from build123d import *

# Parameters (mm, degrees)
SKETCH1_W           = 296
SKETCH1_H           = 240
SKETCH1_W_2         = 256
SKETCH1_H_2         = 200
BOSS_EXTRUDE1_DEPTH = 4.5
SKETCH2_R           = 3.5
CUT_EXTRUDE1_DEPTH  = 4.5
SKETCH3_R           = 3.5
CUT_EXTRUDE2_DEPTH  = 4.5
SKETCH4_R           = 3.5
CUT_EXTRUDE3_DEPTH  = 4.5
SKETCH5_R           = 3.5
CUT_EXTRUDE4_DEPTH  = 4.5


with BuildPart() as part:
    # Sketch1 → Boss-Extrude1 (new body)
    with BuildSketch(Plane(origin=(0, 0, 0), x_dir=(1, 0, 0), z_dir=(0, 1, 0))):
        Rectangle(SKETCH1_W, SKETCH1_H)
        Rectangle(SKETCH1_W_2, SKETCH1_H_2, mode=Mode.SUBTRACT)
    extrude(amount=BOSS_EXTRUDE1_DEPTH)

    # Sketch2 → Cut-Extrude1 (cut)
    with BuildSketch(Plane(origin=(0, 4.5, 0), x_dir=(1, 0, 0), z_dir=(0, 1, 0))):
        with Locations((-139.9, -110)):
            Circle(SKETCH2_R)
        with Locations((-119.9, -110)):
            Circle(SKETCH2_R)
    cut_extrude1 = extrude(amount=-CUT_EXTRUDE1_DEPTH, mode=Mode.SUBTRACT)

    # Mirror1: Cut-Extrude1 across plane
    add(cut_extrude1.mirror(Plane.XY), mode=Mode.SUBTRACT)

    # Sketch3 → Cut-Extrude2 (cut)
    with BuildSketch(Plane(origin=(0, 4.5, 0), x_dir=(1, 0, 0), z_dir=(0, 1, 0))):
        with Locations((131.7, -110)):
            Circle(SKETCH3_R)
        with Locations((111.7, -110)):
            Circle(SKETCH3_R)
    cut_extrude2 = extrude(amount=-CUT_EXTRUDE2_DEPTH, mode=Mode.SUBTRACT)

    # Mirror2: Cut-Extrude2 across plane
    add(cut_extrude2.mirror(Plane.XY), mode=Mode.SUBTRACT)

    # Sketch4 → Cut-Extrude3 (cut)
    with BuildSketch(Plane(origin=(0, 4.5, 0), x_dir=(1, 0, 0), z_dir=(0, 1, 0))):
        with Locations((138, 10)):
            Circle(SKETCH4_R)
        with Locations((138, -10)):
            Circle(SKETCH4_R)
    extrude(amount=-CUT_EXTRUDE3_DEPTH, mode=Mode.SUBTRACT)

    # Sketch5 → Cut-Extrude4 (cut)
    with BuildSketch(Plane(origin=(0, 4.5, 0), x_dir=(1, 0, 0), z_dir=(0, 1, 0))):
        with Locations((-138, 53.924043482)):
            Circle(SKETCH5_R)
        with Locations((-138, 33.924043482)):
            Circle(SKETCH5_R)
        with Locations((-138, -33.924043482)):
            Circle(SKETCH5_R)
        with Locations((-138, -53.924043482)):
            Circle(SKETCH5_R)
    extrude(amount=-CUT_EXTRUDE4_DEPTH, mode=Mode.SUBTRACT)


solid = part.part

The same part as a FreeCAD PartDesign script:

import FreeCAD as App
import Part
import Sketcher

V = App.Vector
Q = App.Units.Quantity


def add_polygon(sketch, points):
    """Adds a closed chain of lines whose ends are joined by coincident constraints."""
    first, n = sketch.GeometryCount, len(points)
    for a, b in zip(points, points[1:] + points[:1]):
        sketch.addGeometry(Part.LineSegment(App.Vector(*a, 0), App.Vector(*b, 0)), False)
    for i in range(n):
        sketch.addConstraint(Sketcher.Constraint("Coincident", first + i, 2, first + (i + 1) % n, 1))

doc = App.newDocument("Part")
body = doc.addObject("PartDesign::Body", "Body")

sketch1 = doc.addObject("Sketcher::SketchObject", "Sketch")
body.addObject(sketch1)
sketch1.AttachmentSupport = (doc.XZ_Plane, [""])
sketch1.MapMode = "FlatFace"
add_polygon(sketch1, [(-148, -120), (-148, 120), (148, 120), (148, -120)])
add_polygon(sketch1, [(128, 100), (-128, 100), (-128, -100), (128, -100)])
sketch1.addConstraint([
    Sketcher.Constraint("Vertical", 0),
    Sketcher.Constraint("Horizontal", 1),
    Sketcher.Constraint("Vertical", 2),
    Sketcher.Constraint("Horizontal", 3),
    Sketcher.Constraint("Horizontal", 4),
    Sketcher.Constraint("Vertical", 5),
    Sketcher.Constraint("Horizontal", 6),
    Sketcher.Constraint("Vertical", 7),
    Sketcher.Constraint("Symmetric", 0, 2, 2, 2, -1, 1),
    Sketcher.Constraint("Symmetric", 4, 2, 6, 2, -1, 1),
    Sketcher.Constraint("DistanceX", 1, 1, 1, 2, Q("296 mm")),
    Sketcher.Constraint("DistanceX", 4, 2, 4, 1, Q("256 mm")),
    Sketcher.Constraint("DistanceY", 0, 1, 0, 2, Q("240 mm")),
    Sketcher.Constraint("DistanceY", 5, 2, 5, 1, Q("200 mm")),
])
pad1 = doc.addObject("PartDesign::Pad", "Pad")
body.addObject(pad1)
pad1.Profile = sketch1
pad1.Length = 4.5
pad1.Reversed = True

sketch2 = doc.addObject("Sketcher::SketchObject", "Sketch001")
body.addObject(sketch2)
sketch2.AttachmentSupport = (doc.XZ_Plane, [""])
sketch2.MapMode = "FlatFace"
sketch2.AttachmentOffset = App.Placement(V(0, 0, -4.5), App.Rotation())
sketch2.addGeometry([
    Part.Circle(V(-139.9, 110, 0), V(0, 0, 1), 3.5),
    Part.Circle(V(-119.9, 110, 0), V(0, 0, 1), 3.5),
], False)
sketch2.addConstraint([
    Sketcher.Constraint("Equal", 0, 1),
    Sketcher.Constraint("Horizontal", 0, 3, 1, 3),
    Sketcher.Constraint("Diameter", 0, Q("7 mm")),
    Sketcher.Constraint("DistanceY", -1, 1, 0, 3, Q("110 mm")),
    Sketcher.Constraint("DistanceX", 0, 3, 1, 3, Q("20 mm")),
    Sketcher.Constraint("DistanceX", 0, 3, -1, 1, Q("139.9 mm")),
])
pocket1 = doc.addObject("PartDesign::Pocket", "Pocket")
body.addObject(pocket1)
pocket1.Profile = sketch2
pocket1.Length = 4.5
pocket1.Reversed = True
doc.recompute()

mirrored = doc.addObject("PartDesign::Mirrored", "Mirrored")
body.addObject(mirrored)
mirrored.Originals = [pocket1]
mirrored.MirrorPlane = (doc.XY_Plane, [""])
body.Tip = mirrored

sketch3 = doc.addObject("Sketcher::SketchObject", "Sketch002")
body.addObject(sketch3)
sketch3.AttachmentSupport = (doc.XZ_Plane, [""])
sketch3.MapMode = "FlatFace"
sketch3.AttachmentOffset = App.Placement(V(0, 0, -4.5), App.Rotation())
sketch3.addGeometry([
    Part.Circle(V(131.7, 110, 0), V(0, 0, 1), 3.5),
    Part.Circle(V(111.7, 110, 0), V(0, 0, 1), 3.5),
], False)
sketch3.addConstraint([
    Sketcher.Constraint("Equal", 0, 1),
    Sketcher.Constraint("Horizontal", 0, 3, 1, 3),
    Sketcher.Constraint("Diameter", 0, Q("7 mm")),
    Sketcher.Constraint("DistanceY", -1, 1, 0, 3, Q("110 mm")),
    Sketcher.Constraint("DistanceX", 1, 3, 0, 3, Q("20 mm")),
    Sketcher.Constraint("DistanceX", -1, 1, 0, 3, Q("131.7 mm")),
])
pocket2 = doc.addObject("PartDesign::Pocket", "Pocket001")
body.addObject(pocket2)
pocket2.Profile = sketch3
pocket2.Length = 4.5
pocket2.Reversed = True
doc.recompute()

mirrored2 = doc.addObject("PartDesign::Mirrored", "Mirrored001")
body.addObject(mirrored2)
mirrored2.Originals = [pocket2]
mirrored2.MirrorPlane = (doc.XY_Plane, [""])
body.Tip = mirrored2

sketch4 = doc.addObject("Sketcher::SketchObject", "Sketch003")
body.addObject(sketch4)
sketch4.AttachmentSupport = (doc.XZ_Plane, [""])
sketch4.MapMode = "FlatFace"
sketch4.AttachmentOffset = App.Placement(V(0, 0, -4.5), App.Rotation())
sketch4.addGeometry([
    Part.Circle(V(138, -10, 0), V(0, 0, 1), 3.5),
    Part.Circle(V(138, 10, 0), V(0, 0, 1), 3.5),
], False)
sketch4.addConstraint([
    Sketcher.Constraint("Equal", 0, 1),
    Sketcher.Constraint("Symmetric", 0, 3, 1, 3, -1),
    Sketcher.Constraint("Diameter", 0, Q("7 mm")),
    Sketcher.Constraint("DistanceX", -1, 1, 0, 3, Q("138 mm")),
    Sketcher.Constraint("DistanceY", 0, 3, -1, 1, Q("10 mm")),
])
pocket3 = doc.addObject("PartDesign::Pocket", "Pocket002")
body.addObject(pocket3)
pocket3.Profile = sketch4
pocket3.Length = 4.5
pocket3.Reversed = True

sketch5 = doc.addObject("Sketcher::SketchObject", "Sketch004")
body.addObject(sketch5)
sketch5.AttachmentSupport = (doc.XZ_Plane, [""])
sketch5.MapMode = "FlatFace"
sketch5.AttachmentOffset = App.Placement(V(0, 0, -4.5), App.Rotation())
sketch5.addGeometry([
    Part.Circle(V(-138, -53.924043, 0), V(0, 0, 1), 3.5),
    Part.Circle(V(-138, -33.924043, 0), V(0, 0, 1), 3.5),
    Part.Circle(V(-138, 33.924043, 0), V(0, 0, 1), 3.5),
    Part.Circle(V(-138, 53.924043, 0), V(0, 0, 1), 3.5),
], False)
sketch5.addConstraint([
    Sketcher.Constraint("Equal", 0, 1),
    Sketcher.Constraint("Equal", 1, 2),
    Sketcher.Constraint("Equal", 2, 3),
    Sketcher.Constraint("Symmetric", 1, 3, 2, 3, -1),
    Sketcher.Constraint("Symmetric", 0, 3, 3, 3, -1),
    Sketcher.Constraint("Vertical", 0, 3, 1, 3),
    Sketcher.Constraint("Diameter", 0, Q("7 mm")),
    Sketcher.Constraint("DistanceX", 0, 3, -1, 1, Q("138 mm")),
    Sketcher.Constraint("DistanceY", 0, 3, 1, 3, Q("20 mm")),
    Sketcher.Constraint("DistanceY", 0, 3, -1, 1, Q("53.924043 mm")),
])
pocket4 = doc.addObject("PartDesign::Pocket", "Pocket003")
body.addObject(pocket4)
pocket4.Profile = sketch5
pocket4.Length = 4.5
pocket4.Reversed = True

doc.recompute()
